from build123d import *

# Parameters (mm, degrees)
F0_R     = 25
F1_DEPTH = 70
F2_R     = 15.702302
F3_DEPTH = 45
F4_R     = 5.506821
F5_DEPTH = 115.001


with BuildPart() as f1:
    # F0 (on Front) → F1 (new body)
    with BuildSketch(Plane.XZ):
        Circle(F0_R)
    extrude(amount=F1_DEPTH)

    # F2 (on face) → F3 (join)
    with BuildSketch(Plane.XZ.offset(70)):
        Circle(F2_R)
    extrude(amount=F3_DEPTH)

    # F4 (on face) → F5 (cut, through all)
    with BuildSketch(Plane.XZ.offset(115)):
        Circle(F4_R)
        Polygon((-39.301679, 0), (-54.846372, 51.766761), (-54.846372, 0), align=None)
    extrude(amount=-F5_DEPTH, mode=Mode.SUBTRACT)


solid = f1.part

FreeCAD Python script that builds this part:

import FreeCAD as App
import Part
import Sketcher
from FreeCAD import Vector


def add_polygon(sketch, points):
    """Adds a closed chain of lines whose ends are joined by coincident constraints."""
    first, n = sketch.GeometryCount, len(points)
    for a, b in zip(points, points[1:] + points[:1]):
        sketch.addGeometry(Part.LineSegment(App.Vector(*a, 0), App.Vector(*b, 0)), False)
    for i in range(n):
        sketch.addConstraint(Sketcher.Constraint("Coincident", first + i, 2, first + (i + 1) % n, 1))

doc = App.newDocument("Part")
body = doc.addObject("PartDesign::Body", "Body")

# Sketch on XZ plane
sketch1 = body.newObject("Sketcher::SketchObject", "Sketch")
sketch1.AttachmentSupport = (doc.getObject("XZ_Plane"), [""])
sketch1.MapMode = "FlatFace"
sketch1.addGeometry(Part.Circle(Vector(0, 0, 0), Vector(0, 0, 1), 25), False)
sketch1.addConstraint(Sketcher.Constraint("Coincident", 0, 3, -1, 1))
sketch1.addConstraint(Sketcher.Constraint("Diameter", 0, 50.0))
pad1 = body.newObject("PartDesign::Pad", "Pad")
pad1.Profile = sketch1
pad1.Length = 70

# Sketch on XZ plane
sketch2 = body.newObject("Sketcher::SketchObject", "Sketch001")
sketch2.AttachmentSupport = (doc.getObject("XZ_Plane"), [""])
sketch2.MapMode = "FlatFace"
sketch2.AttachmentOffset = App.Placement(Vector(0, 0, 70), App.Rotation())
sketch2.addGeometry(Part.Circle(Vector(0, 0, 0), Vector(0, 0, 1), 15.702302), False)
sketch2.addConstraint(Sketcher.Constraint("Coincident", 0, 3, -1, 1))
sketch2.addConstraint(Sketcher.Constraint("Diameter", 0, 31.404604))
pad2 = body.newObject("PartDesign::Pad", "Pad001")
pad2.Profile = sketch2
pad2.Length = 45

# Sketch on XZ plane
sketch3 = body.newObject("Sketcher::SketchObject", "Sketch002")
sketch3.AttachmentSupport = (doc.getObject("XZ_Plane"), [""])
sketch3.MapMode = "FlatFace"
sketch3.AttachmentOffset = App.Placement(Vector(0, 0, 115), App.Rotation())
sketch3.addGeometry(Part.Circle(Vector(0, 0, 0), Vector(0, 0, 1), 5.506821), False)  # 0
add_polygon(sketch3, [(-39.301679, 0), (-54.846372, 51.766761), (-54.846372, 0)])  # lines 1-3
sketch3.addConstraint(Sketcher.Constraint("Vertical", 2))
sketch3.addConstraint(Sketcher.Constraint("Horizontal", 3))
sketch3.addConstraint(Sketcher.Constraint("Coincident", 0, 3, -1, 1))
sketch3.addConstraint(Sketcher.Constraint("PointOnObject", 2, 2, -1))
sketch3.addConstraint(Sketcher.Constraint("Diameter", 0, 11.013642))
sketch3.addConstraint(Sketcher.Constraint("Distance", 1, 54.050301))
sketch3.addConstraint(Sketcher.Constraint("DistanceY", 2, 2, 2, 1, 51.766761))
sketch3.addConstraint(Sketcher.Constraint("DistanceX", 3, 2, -1, 1, 39.301679))
pocket1 = body.newObject("PartDesign::Pocket", "Pocket")
pocket1.Profile = sketch3
pocket1.Type = "ThroughAll"

doc.recompute()
